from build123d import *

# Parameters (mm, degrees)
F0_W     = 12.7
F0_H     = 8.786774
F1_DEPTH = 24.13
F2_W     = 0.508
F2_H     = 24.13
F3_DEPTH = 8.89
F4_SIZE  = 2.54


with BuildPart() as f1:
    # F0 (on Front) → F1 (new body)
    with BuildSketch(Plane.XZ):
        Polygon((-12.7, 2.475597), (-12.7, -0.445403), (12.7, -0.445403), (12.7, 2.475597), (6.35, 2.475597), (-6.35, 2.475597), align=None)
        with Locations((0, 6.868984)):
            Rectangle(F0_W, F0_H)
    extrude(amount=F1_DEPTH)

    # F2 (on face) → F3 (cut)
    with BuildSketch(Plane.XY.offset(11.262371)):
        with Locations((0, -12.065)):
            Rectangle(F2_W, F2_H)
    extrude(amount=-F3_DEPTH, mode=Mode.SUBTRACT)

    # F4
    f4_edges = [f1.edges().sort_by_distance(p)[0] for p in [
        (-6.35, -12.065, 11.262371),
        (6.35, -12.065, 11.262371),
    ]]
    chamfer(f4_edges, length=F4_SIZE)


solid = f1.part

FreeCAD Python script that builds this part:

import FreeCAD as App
import Part
import Sketcher

V = App.Vector
Q = App.Units.Quantity


def edges_at(feature, points):
    """Names of the edges that pass closest to the given points."""
    edges = feature.Shape.Edges
    near = lambda p: min(range(len(edges)), key=lambda i: edges[i].distToShape(Part.Vertex(*p))[0])
    return sorted({f"Edge{near(p) + 1}" for p in points})


def add_polygon(sketch, points):
    """Adds a closed chain of lines whose ends are joined by coincident constraints."""
    first, n = sketch.GeometryCount, len(points)
    for a, b in zip(points, points[1:] + points[:1]):
        sketch.addGeometry(Part.LineSegment(App.Vector(*a, 0), App.Vector(*b, 0)), False)
    for i in range(n):
        sketch.addConstraint(Sketcher.Constraint("Coincident", first + i, 2, first + (i + 1) % n, 1))

doc = App.newDocument("Part")
body = doc.addObject("PartDesign::Body", "Body")

# Sketch on XZ plane
sketch1 = body.newObject("Sketcher::SketchObject", "Sketch")
sketch1.AttachmentSupport = (doc.getObject("XZ_Plane"), [""])
sketch1.MapMode = "FlatFace"
add_polygon(sketch1, [(-12.7, 2.5), (-12.7, -0.4), (12.7, -0.4), (12.7, 2.5), (6.3, 2.5), (6.3, 11.3), (-6.3, 11.3), (-6.3, 2.5)])  # lines 0-7
sketch1.addConstraint([
    Sketcher.Constraint("Vertical", 0),
    Sketcher.Constraint("Horizontal", 1),
    Sketcher.Constraint("Vertical", 2),
    Sketcher.Constraint("Horizontal", 3),
    Sketcher.Constraint("Vertical", 4),
    Sketcher.Constraint("Horizontal", 5),
    Sketcher.Constraint("Vertical", 6),
    Sketcher.Constraint("Horizontal", 7),
    Sketcher.Constraint("Symmetric", 3, 2, 6, 2, -2),
    Sketcher.Constraint("Equal", 3, 7),
    Sketcher.Constraint("DistanceX", 1, 1, 1, 2, Q("1 in")),
    Sketcher.Constraint("DistanceX", 5, 2, 5, 1, Q("0.5 in")),
    Sketcher.Constraint("DistanceY", 0, 2, 0, 1, Q("0.115 in")),
    Sketcher.Constraint("DistanceY", 4, 1, 4, 2, 8.786774),
    Sketcher.Constraint("DistanceY", -1, 1, 4, 2, 11.262371),
])
pad1 = body.newObject("PartDesign::Pad", "Pad")
pad1.Profile = sketch1
pad1.Length = Q("0.95 in")

# Sketch on XY plane
sketch2 = body.newObject("Sketcher::SketchObject", "Sketch001")
sketch2.AttachmentSupport = (doc.getObject("XY_Plane"), [""])
sketch2.MapMode = "FlatFace"
sketch2.AttachmentOffset = App.Placement(V(0, 0, 11.262371), App.Rotation())
add_polygon(sketch2, [(-0.3, 0), (-0.3, -24.1), (0.3, -24.1), (0.3, 0)])  # lines 0-3
sketch2.addConstraint([
    Sketcher.Constraint("Vertical", 0),
    Sketcher.Constraint("Horizontal", 1),
    Sketcher.Constraint("Vertical", 2),
    Sketcher.Constraint("Horizontal", 3),
    Sketcher.Constraint("Symmetric", 2, 2, 3, 2, -1, 1),
    Sketcher.Constraint("DistanceX", 1, 1, 1, 2, Q("0.02 in")),
    Sketcher.Constraint("DistanceY", 0, 2, 0, 1, Q("0.95 in")),
])
pocket1 = body.newObject("PartDesign::Pocket", "Pocket")
pocket1.Profile = sketch2
pocket1.Length = Q("0.35 in")
doc.recompute()

chamfer = body.newObject("PartDesign::Chamfer", "Chamfer")
chamfer.Base = (pocket1, edges_at(pocket1, [(-6.35, -12.065, 11.262), (6.35, -12.065, 11.262)]))
chamfer.Size = Q("0.1 in")

doc.recompute()
